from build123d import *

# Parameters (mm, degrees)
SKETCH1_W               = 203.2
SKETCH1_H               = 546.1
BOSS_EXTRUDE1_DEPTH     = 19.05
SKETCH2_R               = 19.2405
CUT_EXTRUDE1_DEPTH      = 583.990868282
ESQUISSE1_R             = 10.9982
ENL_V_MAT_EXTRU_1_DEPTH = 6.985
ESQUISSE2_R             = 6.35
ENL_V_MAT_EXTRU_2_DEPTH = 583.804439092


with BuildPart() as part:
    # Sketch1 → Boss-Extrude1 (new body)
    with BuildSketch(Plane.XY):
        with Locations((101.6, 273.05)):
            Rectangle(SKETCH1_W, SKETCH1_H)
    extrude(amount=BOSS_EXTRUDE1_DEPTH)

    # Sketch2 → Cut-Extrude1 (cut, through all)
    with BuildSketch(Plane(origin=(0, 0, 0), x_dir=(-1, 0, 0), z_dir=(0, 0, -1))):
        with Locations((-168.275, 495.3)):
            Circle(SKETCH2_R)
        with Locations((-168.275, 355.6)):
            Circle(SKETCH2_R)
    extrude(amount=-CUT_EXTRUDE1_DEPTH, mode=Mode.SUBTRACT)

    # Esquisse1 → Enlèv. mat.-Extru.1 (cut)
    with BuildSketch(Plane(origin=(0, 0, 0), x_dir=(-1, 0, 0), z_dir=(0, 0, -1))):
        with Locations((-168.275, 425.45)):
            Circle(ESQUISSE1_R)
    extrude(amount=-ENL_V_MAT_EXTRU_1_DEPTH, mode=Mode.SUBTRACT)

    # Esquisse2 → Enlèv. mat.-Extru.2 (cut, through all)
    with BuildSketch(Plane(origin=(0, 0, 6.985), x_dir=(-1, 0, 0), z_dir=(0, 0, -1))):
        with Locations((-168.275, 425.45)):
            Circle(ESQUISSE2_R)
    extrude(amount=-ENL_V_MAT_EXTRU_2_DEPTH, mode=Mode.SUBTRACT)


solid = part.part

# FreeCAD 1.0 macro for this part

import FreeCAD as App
import Part
import Sketcher

V = App.Vector
Q = App.Units.Quantity

doc = App.newDocument("Part")
body = doc.addObject("PartDesign::Body", "Body")

# Sketch on XY plane
sketch1 = body.newObject("Sketcher::SketchObject", "Sketch")
sketch1.AttachmentSupport = (doc.getObject("XY_Plane"), [""])
sketch1.MapMode = "FlatFace"
sketch1.addGeometry([
    Part.LineSegment(V(0, 546, 0), V(0, 0, 0)),
    Part.LineSegment(V(0, 0, 0), V(203, 0, 0)),
    Part.LineSegment(V(203, 0, 0), V(203, 546, 0)),
    Part.LineSegment(V(203, 546, 0), V(0, 546, 0)),
], False)
sketch1.addConstraint([
    Sketcher.Constraint("Coincident", 0, 2, 1, 1),
    Sketcher.Constraint("Coincident", 1, 2, 2, 1),
    Sketcher.Constraint("Coincident", 2, 2, 3, 1),
    Sketcher.Constraint("Coincident", 3, 2, 0, 1),
    Sketcher.Constraint("Vertical", 0),
    Sketcher.Constraint("Horizontal", 1),
    Sketcher.Constraint("Vertical", 2),
    Sketcher.Constraint("Horizontal", 3),
    Sketcher.Constraint("Coincident", 0, 2, -1, 1),
    Sketcher.Constraint("DistanceX", 1, 1, 1, 2, Q("8 in")),
    Sketcher.Constraint("DistanceY", 0, 2, 0, 1, Q("21.5 in")),
])
pad1 = body.newObject("PartDesign::Pad", "Pad")
pad1.Profile = sketch1
pad1.Length = Q("0.75 in")

# Sketch on XY plane
sketch2 = body.newObject("Sketcher::SketchObject", "Sketch001")
sketch2.AttachmentSupport = (doc.getObject("XY_Plane"), [""])
sketch2.MapMode = "FlatFace"
sketch2.addGeometry([
    Part.Circle(V(168, 495, 0), V(0, 0, 1), 19),
    Part.Circle(V(168, 356, 0), V(0, 0, 1), 19),
], False)
sketch2.addConstraint([
    Sketcher.Constraint("Equal", 0, 1),
    Sketcher.Constraint("Vertical", 0, 3, 1, 3),
    Sketcher.Constraint("Diameter", 0, Q("1.515 in")),
    Sketcher.Constraint("DistanceY", -1, 1, 1, 3, Q("14 in")),
    Sketcher.Constraint("DistanceY", -1, 1, 0, 3, Q("19.5 in")),
    Sketcher.Constraint("DistanceX", -1, 1, 0, 3, Q("6.625 in")),
])
pocket1 = body.newObject("PartDesign::Pocket", "Pocket")
pocket1.Profile = sketch2
pocket1.Type = "ThroughAll"
pocket1.Reversed = True

# Sketch on XY plane
sketch3 = body.newObject("Sketcher::SketchObject", "Sketch002")
sketch3.AttachmentSupport = (doc.getObject("XY_Plane"), [""])
sketch3.MapMode = "FlatFace"
sketch3.addGeometry(Part.Circle(V(168, 425, 0), V(0, 0, 1), 11), False)
sketch3.addConstraint([
    Sketcher.Constraint("Diameter", 0, Q("0.866 in")),
    Sketcher.Constraint("DistanceY", -1, 1, 0, 3, Q("16.75 in")),
    Sketcher.Constraint("DistanceX", -1, 1, 0, 3, Q("6.625 in")),
])
pocket2 = body.newObject("PartDesign::Pocket", "Pocket001")
pocket2.Profile = sketch3
pocket2.Length = Q("0.275 in")
pocket2.Reversed = True

# Sketch on XY plane
sketch4 = body.newObject("Sketcher::SketchObject", "Sketch003")
sketch4.AttachmentSupport = (doc.getObject("XY_Plane"), [""])
sketch4.MapMode = "FlatFace"
sketch4.AttachmentOffset = App.Placement(V(0, 0, 0.275 * 25.4), App.Rotation())
sketch4.addGeometry(Part.Circle(V(168, 425, 0), V(0, 0, 1), 6), False)
sketch4.addConstraint([
    Sketcher.Constraint("Diameter", 0, Q("0.5 in")),
    Sketcher.Constraint("DistanceY", -1, 1, 0, 3, Q("16.75 in")),
    Sketcher.Constraint("DistanceX", -1, 1, 0, 3, Q("6.625 in")),
])
pocket3 = body.newObject("PartDesign::Pocket", "Pocket002")
pocket3.Profile = sketch4
pocket3.Type = "ThroughAll"
pocket3.Reversed = True

doc.recompute()
